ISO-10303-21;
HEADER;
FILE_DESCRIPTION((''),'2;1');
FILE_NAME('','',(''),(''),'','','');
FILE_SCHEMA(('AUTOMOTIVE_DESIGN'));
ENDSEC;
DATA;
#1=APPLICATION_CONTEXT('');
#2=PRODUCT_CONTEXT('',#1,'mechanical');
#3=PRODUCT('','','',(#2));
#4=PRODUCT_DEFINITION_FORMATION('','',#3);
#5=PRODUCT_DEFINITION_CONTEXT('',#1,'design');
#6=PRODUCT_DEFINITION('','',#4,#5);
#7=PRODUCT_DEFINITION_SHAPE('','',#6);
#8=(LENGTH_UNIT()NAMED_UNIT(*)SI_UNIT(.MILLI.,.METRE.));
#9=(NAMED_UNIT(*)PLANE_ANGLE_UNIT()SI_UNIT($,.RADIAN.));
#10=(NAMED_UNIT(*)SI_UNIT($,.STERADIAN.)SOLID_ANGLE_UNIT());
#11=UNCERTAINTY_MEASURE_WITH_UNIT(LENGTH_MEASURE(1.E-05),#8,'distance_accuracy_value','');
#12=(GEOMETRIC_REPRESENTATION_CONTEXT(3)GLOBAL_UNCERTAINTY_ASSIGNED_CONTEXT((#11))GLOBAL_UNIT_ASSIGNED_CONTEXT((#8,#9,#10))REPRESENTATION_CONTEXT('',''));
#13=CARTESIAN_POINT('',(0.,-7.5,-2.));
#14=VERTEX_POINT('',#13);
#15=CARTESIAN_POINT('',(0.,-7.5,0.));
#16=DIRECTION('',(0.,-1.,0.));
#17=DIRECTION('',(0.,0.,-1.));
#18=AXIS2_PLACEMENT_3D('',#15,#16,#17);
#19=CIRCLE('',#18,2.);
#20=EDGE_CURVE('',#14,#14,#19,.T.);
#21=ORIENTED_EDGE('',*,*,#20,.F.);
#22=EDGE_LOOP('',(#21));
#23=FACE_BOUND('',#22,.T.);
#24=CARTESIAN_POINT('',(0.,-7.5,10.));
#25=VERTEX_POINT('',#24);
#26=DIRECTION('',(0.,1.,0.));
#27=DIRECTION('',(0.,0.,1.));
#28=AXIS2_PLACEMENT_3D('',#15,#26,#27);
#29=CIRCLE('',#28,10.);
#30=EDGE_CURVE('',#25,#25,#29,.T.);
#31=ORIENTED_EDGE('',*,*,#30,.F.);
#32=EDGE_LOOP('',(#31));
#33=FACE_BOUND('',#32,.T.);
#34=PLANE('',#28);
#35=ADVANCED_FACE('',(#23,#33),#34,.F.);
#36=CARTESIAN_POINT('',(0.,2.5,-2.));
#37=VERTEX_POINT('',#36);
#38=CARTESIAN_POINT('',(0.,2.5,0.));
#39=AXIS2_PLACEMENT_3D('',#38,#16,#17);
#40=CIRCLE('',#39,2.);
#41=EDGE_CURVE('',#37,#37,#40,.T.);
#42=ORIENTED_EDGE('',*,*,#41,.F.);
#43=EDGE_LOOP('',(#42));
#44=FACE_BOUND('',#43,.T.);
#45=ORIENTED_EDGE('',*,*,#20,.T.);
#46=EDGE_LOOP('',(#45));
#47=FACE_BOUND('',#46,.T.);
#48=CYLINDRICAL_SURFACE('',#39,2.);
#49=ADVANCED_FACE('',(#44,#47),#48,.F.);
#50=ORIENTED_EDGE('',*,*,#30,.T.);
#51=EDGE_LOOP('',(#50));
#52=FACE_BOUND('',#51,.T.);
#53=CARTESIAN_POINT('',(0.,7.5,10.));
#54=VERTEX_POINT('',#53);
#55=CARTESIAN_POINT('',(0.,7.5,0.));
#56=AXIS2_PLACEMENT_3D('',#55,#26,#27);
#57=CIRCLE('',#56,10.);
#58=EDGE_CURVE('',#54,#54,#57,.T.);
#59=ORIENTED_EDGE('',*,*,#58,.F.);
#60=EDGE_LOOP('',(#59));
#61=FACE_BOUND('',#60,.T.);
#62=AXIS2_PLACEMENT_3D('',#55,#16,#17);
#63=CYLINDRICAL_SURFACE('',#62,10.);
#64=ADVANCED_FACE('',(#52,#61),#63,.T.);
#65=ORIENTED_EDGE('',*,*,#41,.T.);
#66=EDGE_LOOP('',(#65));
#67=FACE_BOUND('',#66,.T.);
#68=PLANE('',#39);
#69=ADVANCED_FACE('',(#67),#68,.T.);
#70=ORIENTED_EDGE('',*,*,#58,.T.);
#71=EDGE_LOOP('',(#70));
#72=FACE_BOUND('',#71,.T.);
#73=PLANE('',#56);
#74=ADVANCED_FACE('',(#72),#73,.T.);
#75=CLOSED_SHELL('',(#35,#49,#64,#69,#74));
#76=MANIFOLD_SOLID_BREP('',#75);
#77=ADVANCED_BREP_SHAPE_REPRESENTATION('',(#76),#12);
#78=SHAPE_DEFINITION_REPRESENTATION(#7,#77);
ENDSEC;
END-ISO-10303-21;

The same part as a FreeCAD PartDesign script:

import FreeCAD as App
import Part
import Sketcher
from FreeCAD import Vector

doc = App.newDocument("Part")
body = doc.addObject("PartDesign::Body", "Body")

# Sketch on XZ plane
sketch1 = doc.addObject("Sketcher::SketchObject", "Sketch")
body.addObject(sketch1)
sketch1.AttachmentSupport = (doc.XZ_Plane, [""])
sketch1.MapMode = "FlatFace"
sketch1.addGeometry(Part.Circle(Vector(0, 0, 0), Vector(0, 0, 1), 10), False)
sketch1.addConstraint([
    Sketcher.Constraint("Coincident", 0, 3, -1, 1),
    Sketcher.Constraint("Diameter", 0, 20.0),
])
pad1 = doc.addObject("PartDesign::Pad", "Pad")
body.addObject(pad1)
pad1.Profile = sketch1
pad1.Length = 15
pad1.Midplane = True

# Sketch on XZ plane
sketch2 = doc.addObject("Sketcher::SketchObject", "Sketch001")
body.addObject(sketch2)
sketch2.AttachmentSupport = (doc.XZ_Plane, [""])
sketch2.MapMode = "FlatFace"
sketch2.AttachmentOffset = App.Placement(Vector(0, 0, 7.5), App.Rotation())
sketch2.addGeometry(Part.Circle(Vector(0, 0, 0), Vector(0, 0, 1), 2), False)
sketch2.addConstraint([
    Sketcher.Constraint("Coincident", 0, 3, -1, 1),
    Sketcher.Constraint("Diameter", 0, 4.0),
])
pocket1 = doc.addObject("PartDesign::Pocket", "Pocket")
body.addObject(pocket1)
pocket1.Profile = sketch2
pocket1.Length = 10

doc.recompute()
